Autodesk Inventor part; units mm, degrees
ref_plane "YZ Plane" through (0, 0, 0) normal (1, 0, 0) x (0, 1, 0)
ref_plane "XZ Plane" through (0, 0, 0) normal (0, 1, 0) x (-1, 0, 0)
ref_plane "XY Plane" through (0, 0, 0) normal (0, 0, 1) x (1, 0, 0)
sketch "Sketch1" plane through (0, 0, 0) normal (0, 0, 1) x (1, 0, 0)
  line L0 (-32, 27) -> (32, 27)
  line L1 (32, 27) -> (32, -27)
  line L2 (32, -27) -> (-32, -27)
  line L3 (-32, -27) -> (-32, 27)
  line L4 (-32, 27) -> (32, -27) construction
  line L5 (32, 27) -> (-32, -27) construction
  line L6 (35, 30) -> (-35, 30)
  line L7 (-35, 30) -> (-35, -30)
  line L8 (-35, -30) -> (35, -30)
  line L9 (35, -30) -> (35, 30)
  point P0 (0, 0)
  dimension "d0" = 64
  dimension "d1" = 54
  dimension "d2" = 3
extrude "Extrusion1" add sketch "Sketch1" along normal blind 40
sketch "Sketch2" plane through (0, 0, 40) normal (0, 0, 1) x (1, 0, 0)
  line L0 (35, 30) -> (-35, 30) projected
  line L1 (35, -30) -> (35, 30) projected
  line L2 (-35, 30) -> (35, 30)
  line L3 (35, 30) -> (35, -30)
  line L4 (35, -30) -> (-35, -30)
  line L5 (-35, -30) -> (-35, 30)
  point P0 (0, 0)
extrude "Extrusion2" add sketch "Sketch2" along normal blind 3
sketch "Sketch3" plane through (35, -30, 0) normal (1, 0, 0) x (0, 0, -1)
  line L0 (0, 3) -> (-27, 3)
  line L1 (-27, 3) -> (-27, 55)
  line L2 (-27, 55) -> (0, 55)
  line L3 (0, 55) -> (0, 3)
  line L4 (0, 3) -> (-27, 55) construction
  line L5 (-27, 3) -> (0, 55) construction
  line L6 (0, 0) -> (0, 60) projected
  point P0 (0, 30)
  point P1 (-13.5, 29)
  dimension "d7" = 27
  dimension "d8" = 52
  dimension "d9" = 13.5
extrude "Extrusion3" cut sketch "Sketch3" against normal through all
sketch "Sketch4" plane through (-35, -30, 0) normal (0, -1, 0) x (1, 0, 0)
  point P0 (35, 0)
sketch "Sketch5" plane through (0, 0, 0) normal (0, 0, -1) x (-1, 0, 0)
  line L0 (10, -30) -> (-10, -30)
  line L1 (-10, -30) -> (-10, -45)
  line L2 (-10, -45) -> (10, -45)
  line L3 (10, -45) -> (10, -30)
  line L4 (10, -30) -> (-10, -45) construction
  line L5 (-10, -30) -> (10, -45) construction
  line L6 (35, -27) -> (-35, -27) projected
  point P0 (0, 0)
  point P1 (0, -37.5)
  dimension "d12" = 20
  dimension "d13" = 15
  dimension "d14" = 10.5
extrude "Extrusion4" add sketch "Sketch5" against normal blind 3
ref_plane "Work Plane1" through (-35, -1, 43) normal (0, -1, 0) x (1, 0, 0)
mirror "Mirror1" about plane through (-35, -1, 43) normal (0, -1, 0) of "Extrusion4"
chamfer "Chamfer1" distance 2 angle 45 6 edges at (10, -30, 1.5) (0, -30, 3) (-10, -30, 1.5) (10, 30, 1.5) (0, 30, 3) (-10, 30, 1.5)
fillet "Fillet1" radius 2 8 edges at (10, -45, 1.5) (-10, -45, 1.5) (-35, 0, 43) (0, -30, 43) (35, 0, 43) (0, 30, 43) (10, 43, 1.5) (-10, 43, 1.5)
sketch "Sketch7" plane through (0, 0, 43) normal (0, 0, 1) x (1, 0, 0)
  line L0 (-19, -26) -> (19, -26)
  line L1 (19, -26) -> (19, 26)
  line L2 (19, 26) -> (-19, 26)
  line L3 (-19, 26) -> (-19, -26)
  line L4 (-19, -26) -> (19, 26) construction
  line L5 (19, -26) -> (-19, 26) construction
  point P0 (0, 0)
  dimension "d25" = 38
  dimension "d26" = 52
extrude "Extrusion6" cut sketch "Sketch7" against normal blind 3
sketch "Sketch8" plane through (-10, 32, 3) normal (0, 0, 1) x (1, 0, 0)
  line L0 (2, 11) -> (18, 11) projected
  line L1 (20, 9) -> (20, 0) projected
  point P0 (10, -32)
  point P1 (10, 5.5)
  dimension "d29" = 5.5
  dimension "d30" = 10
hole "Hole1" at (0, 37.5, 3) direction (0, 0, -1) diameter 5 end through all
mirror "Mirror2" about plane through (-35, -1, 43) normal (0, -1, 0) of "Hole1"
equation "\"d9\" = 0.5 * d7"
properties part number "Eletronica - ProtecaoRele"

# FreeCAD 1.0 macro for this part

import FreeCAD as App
import Part
import Sketcher
from FreeCAD import Vector
Q = App.Units.Quantity


def edges_at(feature, points):
    """Names of the edges that pass closest to the given points."""
    edges = feature.Shape.Edges
    near = lambda p: min(range(len(edges)), key=lambda i: edges[i].distToShape(Part.Vertex(*p))[0])
    return sorted({f"Edge{near(p) + 1}" for p in points})


def add_polygon(sketch, points):
    """Adds a closed chain of lines whose ends are joined by coincident constraints."""
    first, n = sketch.GeometryCount, len(points)
    for a, b in zip(points, points[1:] + points[:1]):
        sketch.addGeometry(Part.LineSegment(App.Vector(*a, 0), App.Vector(*b, 0)), False)
    for i in range(n):
        sketch.addConstraint(Sketcher.Constraint("Coincident", first + i, 2, first + (i + 1) % n, 1))

doc = App.newDocument("Part")
params = doc.addObject("Spreadsheet::Sheet", "Params")
for row, (alias, value) in enumerate([
    ("sketch1_width", "64 mm"),
    ("sketch1_height", "54 mm"),
    ("pad1_length", "40 mm"),
    ("sketch2_width", "70 mm"),
    ("sketch2_height", "60 mm"),
    ("pad2_length", "3 mm"),
    ("sketch3_width", "52 mm"),
    ("sketch3_height", "27 mm"),
    ("sketch4_width", "20 mm"),
    ("sketch4_height", "15 mm"),
    ("pad3_length", "3 mm"),
    ("chamfer_size", "2 mm"),
    ("fillet_radius", "2 mm"),
    ("sketch5_width", "38 mm"),
    ("sketch5_height", "52 mm"),
    ("pocket2_length", "3 mm"),
    ("sketch6_diameter", "5 mm"),
    ("hole_diameter", "5 mm"),
], start=1):
    params.set(f"A{row}", alias)
    params.set(f"B{row}", "=" + value)
    params.setAlias(f"B{row}", alias)

body = doc.addObject("PartDesign::Body", "Body")

# Sketch on XY plane
sketch1 = body.newObject("Sketcher::SketchObject", "Sketch")
sketch1.AttachmentSupport = (doc.getObject("XY_Plane"), [""])
sketch1.MapMode = "FlatFace"
add_polygon(sketch1, [(35, -30), (35, 30), (-35, 30), (-35, -30)])  # lines 0-3
add_polygon(sketch1, [(-32, -27), (-32, 27), (32, 27), (32, -27)])  # lines 4-7
sketch1.addConstraint(Sketcher.Constraint("Vertical", 0))
sketch1.addConstraint(Sketcher.Constraint("Horizontal", 1))
sketch1.addConstraint(Sketcher.Constraint("Vertical", 2))
sketch1.addConstraint(Sketcher.Constraint("Horizontal", 3))
sketch1.addConstraint(Sketcher.Constraint("Vertical", 4))
sketch1.addConstraint(Sketcher.Constraint("Horizontal", 5))
sketch1.addConstraint(Sketcher.Constraint("Vertical", 6))
sketch1.addConstraint(Sketcher.Constraint("Horizontal", 7))
sketch1.addConstraint(Sketcher.Constraint("Symmetric", 0, 2, 2, 2, -1, 1))
sketch1.addConstraint(Sketcher.Constraint("Symmetric", 4, 2, 6, 2, -1, 1))
sketch1.addConstraint(Sketcher.Constraint("DistanceX", 5, 1, 5, 2, Q("64 mm")))
sketch1.addConstraint(Sketcher.Constraint("DistanceY", 4, 1, 4, 2, Q("54 mm")))
sketch1.addConstraint(Sketcher.Constraint("DistanceX", 1, 2, 4, 2, Q("3 mm")))
sketch1.addConstraint(Sketcher.Constraint("DistanceY", 4, 2, 1, 2, Q("3 mm")))
sketch1.setExpression("Constraints[18]", "Params.sketch1_width")
sketch1.setExpression("Constraints[19]", "Params.sketch1_height")
pad1 = body.newObject("PartDesign::Pad", "Pad")
pad1.Profile = sketch1
pad1.setExpression("Length", "Params.pad1_length")

# Sketch on XY plane
sketch2 = body.newObject("Sketcher::SketchObject", "Sketch001")
sketch2.AttachmentSupport = (doc.getObject("XY_Plane"), [""])
sketch2.MapMode = "FlatFace"
sketch2.AttachmentOffset = App.Placement(Vector(0, 0, 40), App.Rotation())
add_polygon(sketch2, [(35, -30), (35, 30), (-35, 30), (-35, -30)])  # lines 0-3
sketch2.addConstraint(Sketcher.Constraint("Vertical", 0))
sketch2.addConstraint(Sketcher.Constraint("Horizontal", 1))
sketch2.addConstraint(Sketcher.Constraint("Vertical", 2))
sketch2.addConstraint(Sketcher.Constraint("Horizontal", 3))
sketch2.addConstraint(Sketcher.Constraint("Symmetric", 0, 2, 2, 2, -1, 1))
sketch2.addConstraint(Sketcher.Constraint("DistanceX", 1, 2, 1, 1, Q("70 mm")))
sketch2.addConstraint(Sketcher.Constraint("DistanceY", 0, 1, 0, 2, Q("60 mm")))
sketch2.setExpression("Constraints[9]", "Params.sketch2_width")
sketch2.setExpression("Constraints[10]", "Params.sketch2_height")
pad2 = body.newObject("PartDesign::Pad", "Pad001")
pad2.Profile = sketch2
pad2.setExpression("Length", "Params.pad2_length")

# Sketch on YZ plane
sketch3 = body.newObject("Sketcher::SketchObject", "Sketch002")
sketch3.AttachmentSupport = (doc.getObject("YZ_Plane"), [""])
sketch3.MapMode = "FlatFace"
sketch3.AttachmentOffset = App.Placement(Vector(0, 0, 35), App.Rotation())
add_polygon(sketch3, [(-27, 27), (-27, 0), (25, 0), (25, 27)])  # lines 0-3
sketch3.addConstraint(Sketcher.Constraint("Vertical", 0))
sketch3.addConstraint(Sketcher.Constraint("Horizontal", 1))
sketch3.addConstraint(Sketcher.Constraint("Vertical", 2))
sketch3.addConstraint(Sketcher.Constraint("Horizontal", 3))
sketch3.addConstraint(Sketcher.Constraint("PointOnObject", 0, 2, -1))
sketch3.addConstraint(Sketcher.Constraint("DistanceX", 1, 1, 1, 2, Q("52 mm")))
sketch3.addConstraint(Sketcher.Constraint("DistanceY", 0, 2, 0, 1, Q("27 mm")))
sketch3.addConstraint(Sketcher.Constraint("DistanceX", 0, 2, -1, 1, Q("27 mm")))
sketch3.setExpression("Constraints[9]", "Params.sketch3_width")
sketch3.setExpression("Constraints[10]", "Params.sketch3_height")
pocket1 = body.newObject("PartDesign::Pocket", "Pocket")
pocket1.Profile = sketch3
pocket1.Type = "ThroughAll"

# Sketch on XY plane
sketch4 = body.newObject("Sketcher::SketchObject", "Sketch003")
sketch4.AttachmentSupport = (doc.getObject("XY_Plane"), [""])
sketch4.MapMode = "FlatFace"
add_polygon(sketch4, [(-10, -45), (-10, -30), (10, -30), (10, -45)])  # lines 0-3
sketch4.addConstraint(Sketcher.Constraint("Vertical", 0))
sketch4.addConstraint(Sketcher.Constraint("Horizontal", 1))
sketch4.addConstraint(Sketcher.Constraint("Vertical", 2))
sketch4.addConstraint(Sketcher.Constraint("Horizontal", 3))
sketch4.addConstraint(Sketcher.Constraint("DistanceX", 1, 1, 1, 2, Q("20 mm")))
sketch4.addConstraint(Sketcher.Constraint("DistanceY", 0, 1, 0, 2, Q("15 mm")))
sketch4.addConstraint(Sketcher.Constraint("DistanceX", 0, 2, -1, 1, Q("10 mm")))
sketch4.addConstraint(Sketcher.Constraint("DistanceY", 0, 2, -1, 1, Q("30 mm")))
sketch4.setExpression("Constraints[8]", "Params.sketch4_width")
sketch4.setExpression("Constraints[9]", "Params.sketch4_height")
pad3 = body.newObject("PartDesign::Pad", "Pad002")
pad3.Profile = sketch4
pad3.setExpression("Length", "Params.pad3_length")
doc.recompute()

datumplane = body.newObject("PartDesign::Plane", "DatumPlane")
datumplane.AttachmentSupport = (doc.getObject("XZ_Plane"), [""])
datumplane.MapMode = "FlatFace"
datumplane.AttachmentOffset = App.Placement(Vector(0, 0, 1), App.Rotation())
mirrored = body.newObject("PartDesign::Mirrored", "Mirrored")
mirrored.Originals = [pad3]
mirrored.MirrorPlane = (datumplane, [""])
body.Tip = mirrored
doc.recompute()

chamfer = body.newObject("PartDesign::Chamfer", "Chamfer")
chamfer.Base = (mirrored, edges_at(mirrored, [
    (10, -30, 1.5),
    (0, -30, 3),
    (-10, -30, 1.5),
    (10, 30, 1.5),
    (0, 30, 3),
    (-10, 30, 1.5),
]))
chamfer.setExpression("Size", "Params.chamfer_size")
doc.recompute()

fillet = body.newObject("PartDesign::Fillet", "Fillet")
fillet.Base = (chamfer, edges_at(chamfer, [
    (10, -45, 1.5),
    (-10, -45, 1.5),
    (-35, 0, 43),
    (0, -30, 43),
    (35, 0, 43),
    (0, 30, 43),
    (10, 43, 1.5),
    (-10, 43, 1.5),
]))
fillet.setExpression("Radius", "Params.fillet_radius")

# Sketch on XY plane
sketch5 = body.newObject("Sketcher::SketchObject", "Sketch004")
sketch5.AttachmentSupport = (doc.getObject("XY_Plane"), [""])
sketch5.MapMode = "FlatFace"
sketch5.AttachmentOffset = App.Placement(Vector(0, 0, 43), App.Rotation())
add_polygon(sketch5, [(-19, 26), (-19, -26), (19, -26), (19, 26)])  # lines 0-3
sketch5.addConstraint(Sketcher.Constraint("Vertical", 0))
sketch5.addConstraint(Sketcher.Constraint("Horizontal", 1))
sketch5.addConstraint(Sketcher.Constraint("Vertical", 2))
sketch5.addConstraint(Sketcher.Constraint("Horizontal", 3))
sketch5.addConstraint(Sketcher.Constraint("Symmetric", 0, 2, 2, 2, -1, 1))
sketch5.addConstraint(Sketcher.Constraint("DistanceX", 1, 1, 1, 2, Q("38 mm")))
sketch5.addConstraint(Sketcher.Constraint("DistanceY", 0, 2, 0, 1, Q("52 mm")))
sketch5.setExpression("Constraints[9]", "Params.sketch5_width")
sketch5.setExpression("Constraints[10]", "Params.sketch5_height")
pocket2 = body.newObject("PartDesign::Pocket", "Pocket001")
pocket2.Profile = sketch5
pocket2.setExpression("Length", "Params.pocket2_length")

# Sketch on XY plane
sketch6 = body.newObject("Sketcher::SketchObject", "Sketch005")
sketch6.AttachmentSupport = (doc.getObject("XY_Plane"), [""])
sketch6.MapMode = "FlatFace"
sketch6.AttachmentOffset = App.Placement(Vector(0, 0, 3), App.Rotation())
sketch6.addGeometry(Part.Circle(Vector(0, 37.5, 0), Vector(0, 0, 1), 2.5), False)
sketch6.addConstraint(Sketcher.Constraint("PointOnObject", 0, 3, -2))
sketch6.addConstraint(Sketcher.Constraint("Diameter", 0, Q("5 mm")))
sketch6.addConstraint(Sketcher.Constraint("DistanceY", -1, 1, 0, 3, Q("37.5 mm")))
sketch6.setExpression("Constraints[1]", "Params.sketch6_diameter")
doc.recompute()
hole = body.newObject("PartDesign::Hole", "Hole")
hole.Profile = sketch6
hole.ThreadType = "None"
hole.setExpression("Diameter", "Params.hole_diameter")
hole.DepthType = "ThroughAll"
doc.recompute()

datumplane2 = body.newObject("PartDesign::Plane", "DatumPlane001")
datumplane2.AttachmentSupport = (doc.getObject("XZ_Plane"), [""])
datumplane2.MapMode = "FlatFace"
datumplane2.AttachmentOffset = App.Placement(Vector(0, 0, 1), App.Rotation())
mirrored2 = body.newObject("PartDesign::Mirrored", "Mirrored001")
mirrored2.Originals = [hole]
mirrored2.MirrorPlane = (datumplane2, [""])
body.Tip = mirrored2

doc.recompute()
